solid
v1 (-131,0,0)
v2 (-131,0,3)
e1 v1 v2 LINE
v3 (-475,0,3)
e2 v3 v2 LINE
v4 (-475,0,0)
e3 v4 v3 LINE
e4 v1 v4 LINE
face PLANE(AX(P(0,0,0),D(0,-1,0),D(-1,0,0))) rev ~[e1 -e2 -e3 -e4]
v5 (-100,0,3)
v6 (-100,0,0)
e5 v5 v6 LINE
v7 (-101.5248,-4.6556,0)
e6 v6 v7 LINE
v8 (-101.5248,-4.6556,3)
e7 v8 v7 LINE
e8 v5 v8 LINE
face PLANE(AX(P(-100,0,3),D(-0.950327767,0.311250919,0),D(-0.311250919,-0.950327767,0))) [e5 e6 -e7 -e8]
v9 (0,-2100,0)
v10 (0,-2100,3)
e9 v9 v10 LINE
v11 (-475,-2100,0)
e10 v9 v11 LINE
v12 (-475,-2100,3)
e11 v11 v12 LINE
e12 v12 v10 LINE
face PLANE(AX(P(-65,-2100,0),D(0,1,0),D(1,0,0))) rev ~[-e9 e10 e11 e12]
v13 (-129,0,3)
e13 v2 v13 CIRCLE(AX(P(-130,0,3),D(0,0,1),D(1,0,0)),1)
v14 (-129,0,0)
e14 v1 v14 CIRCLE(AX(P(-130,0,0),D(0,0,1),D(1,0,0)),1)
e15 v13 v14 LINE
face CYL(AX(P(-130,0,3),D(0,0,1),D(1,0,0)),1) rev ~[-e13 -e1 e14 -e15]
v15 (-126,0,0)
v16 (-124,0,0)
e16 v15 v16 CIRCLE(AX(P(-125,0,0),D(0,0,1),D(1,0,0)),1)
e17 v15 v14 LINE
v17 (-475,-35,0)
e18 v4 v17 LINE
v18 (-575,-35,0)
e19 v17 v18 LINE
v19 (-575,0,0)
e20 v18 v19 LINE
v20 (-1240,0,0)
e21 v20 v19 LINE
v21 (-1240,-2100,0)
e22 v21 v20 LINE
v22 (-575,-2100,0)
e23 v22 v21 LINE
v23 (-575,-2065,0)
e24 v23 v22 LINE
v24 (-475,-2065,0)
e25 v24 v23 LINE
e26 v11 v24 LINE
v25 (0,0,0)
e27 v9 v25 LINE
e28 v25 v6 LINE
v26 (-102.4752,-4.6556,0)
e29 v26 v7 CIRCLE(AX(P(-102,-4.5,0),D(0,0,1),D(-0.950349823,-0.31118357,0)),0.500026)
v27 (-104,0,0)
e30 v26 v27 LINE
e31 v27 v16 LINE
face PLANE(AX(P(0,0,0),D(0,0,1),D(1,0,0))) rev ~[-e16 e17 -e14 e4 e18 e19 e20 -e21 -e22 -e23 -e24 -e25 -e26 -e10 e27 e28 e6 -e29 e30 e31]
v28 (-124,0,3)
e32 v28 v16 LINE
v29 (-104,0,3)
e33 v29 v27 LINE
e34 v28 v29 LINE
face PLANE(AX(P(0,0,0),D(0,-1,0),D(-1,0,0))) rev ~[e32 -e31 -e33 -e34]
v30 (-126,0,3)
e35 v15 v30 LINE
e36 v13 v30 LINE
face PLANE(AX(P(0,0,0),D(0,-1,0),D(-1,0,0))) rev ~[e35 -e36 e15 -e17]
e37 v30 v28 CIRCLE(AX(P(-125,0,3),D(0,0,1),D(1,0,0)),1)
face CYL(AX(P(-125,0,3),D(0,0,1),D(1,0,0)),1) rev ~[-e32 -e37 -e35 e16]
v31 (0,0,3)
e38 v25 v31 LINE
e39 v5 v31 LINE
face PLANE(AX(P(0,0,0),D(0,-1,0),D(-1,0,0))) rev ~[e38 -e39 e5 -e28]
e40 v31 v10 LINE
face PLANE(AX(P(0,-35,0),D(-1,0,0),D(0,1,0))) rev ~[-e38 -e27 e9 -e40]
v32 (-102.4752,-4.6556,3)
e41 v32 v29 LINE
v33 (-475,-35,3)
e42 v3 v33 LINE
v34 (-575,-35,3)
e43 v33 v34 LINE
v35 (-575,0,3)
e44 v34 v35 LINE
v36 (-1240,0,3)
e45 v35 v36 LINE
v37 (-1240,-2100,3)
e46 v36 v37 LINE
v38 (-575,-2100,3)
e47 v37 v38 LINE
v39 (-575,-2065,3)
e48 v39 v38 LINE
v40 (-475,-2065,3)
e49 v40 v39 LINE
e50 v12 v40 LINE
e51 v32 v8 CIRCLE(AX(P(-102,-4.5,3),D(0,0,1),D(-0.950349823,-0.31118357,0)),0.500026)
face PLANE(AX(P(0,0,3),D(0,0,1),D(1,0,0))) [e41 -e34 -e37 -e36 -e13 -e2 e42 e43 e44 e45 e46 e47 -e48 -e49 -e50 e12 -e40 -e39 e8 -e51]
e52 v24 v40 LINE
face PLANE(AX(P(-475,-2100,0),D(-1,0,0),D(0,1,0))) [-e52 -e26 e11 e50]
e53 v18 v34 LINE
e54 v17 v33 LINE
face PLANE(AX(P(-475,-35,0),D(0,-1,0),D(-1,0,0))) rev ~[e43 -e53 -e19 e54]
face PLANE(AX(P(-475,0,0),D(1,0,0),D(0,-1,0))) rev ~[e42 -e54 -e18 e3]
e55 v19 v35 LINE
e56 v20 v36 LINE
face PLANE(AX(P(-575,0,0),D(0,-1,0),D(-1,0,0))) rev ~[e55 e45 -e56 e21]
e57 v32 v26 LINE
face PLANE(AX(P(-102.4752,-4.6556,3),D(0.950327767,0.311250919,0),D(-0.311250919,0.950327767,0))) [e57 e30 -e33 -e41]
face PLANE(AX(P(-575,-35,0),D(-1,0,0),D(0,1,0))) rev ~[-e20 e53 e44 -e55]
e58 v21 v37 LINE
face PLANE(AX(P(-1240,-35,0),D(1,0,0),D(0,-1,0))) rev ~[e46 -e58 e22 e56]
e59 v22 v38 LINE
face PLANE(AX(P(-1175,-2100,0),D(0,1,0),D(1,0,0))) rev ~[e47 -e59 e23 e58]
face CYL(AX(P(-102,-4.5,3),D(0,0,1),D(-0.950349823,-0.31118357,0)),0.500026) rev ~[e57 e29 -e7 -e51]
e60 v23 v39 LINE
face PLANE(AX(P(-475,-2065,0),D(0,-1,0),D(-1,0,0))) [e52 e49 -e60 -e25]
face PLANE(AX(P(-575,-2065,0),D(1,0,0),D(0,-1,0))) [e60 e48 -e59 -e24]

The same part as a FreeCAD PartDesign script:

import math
import FreeCAD as App
import Part
import Sketcher

doc = App.newDocument("Part")
body = doc.addObject("PartDesign::Body", "Body")

sketch1 = doc.addObject("Sketcher::SketchObject", "Sketch")
body.addObject(sketch1)
sketch1.AttachmentSupport = (doc.XY_Plane, [""])
sketch1.MapMode = "FlatFace"
sketch1.addGeometry(Part.LineSegment(App.Vector(0, 0, 0), App.Vector(-475, 0, 0)), False)
sketch1.addGeometry(Part.LineSegment(App.Vector(-475, 0, 0), App.Vector(-475, -35, 0)), False)
sketch1.addGeometry(Part.LineSegment(App.Vector(-475, -35, 0), App.Vector(-575, -35, 0)), False)
sketch1.addGeometry(Part.LineSegment(App.Vector(-575, -35, 0), App.Vector(-575, 0, 0)), False)
sketch1.addGeometry(Part.LineSegment(App.Vector(-575, 0, 0), App.Vector(-1240, 0, 0)), False)
sketch1.addGeometry(Part.LineSegment(App.Vector(-1240, 0, 0), App.Vector(-1240, -2100, 0)), False)
sketch1.addGeometry(Part.LineSegment(App.Vector(-1240, -2100, 0), App.Vector(-575, -2100, 0)), False)
sketch1.addGeometry(Part.LineSegment(App.Vector(-575, -2100, 0), App.Vector(-575, -2065, 0)), False)
sketch1.addGeometry(Part.LineSegment(App.Vector(-575, -2065, 0), App.Vector(-475, -2065, 0)), False)
sketch1.addGeometry(Part.LineSegment(App.Vector(-475, -2065, 0), App.Vector(-475, -2100, 0)), False)
sketch1.addGeometry(Part.LineSegment(App.Vector(-475, -2100, 0), App.Vector(0, -2100, 0)), False)
sketch1.addGeometry(Part.LineSegment(App.Vector(0, -2100, 0), App.Vector(0, 0, 0)), False)
sketch1.addConstraint(Sketcher.Constraint("Coincident", 0, 2, 1, 1))
sketch1.addConstraint(Sketcher.Constraint("Coincident", 1, 2, 2, 1))
sketch1.addConstraint(Sketcher.Constraint("Coincident", 2, 2, 3, 1))
sketch1.addConstraint(Sketcher.Constraint("Coincident", 3, 2, 4, 1))
sketch1.addConstraint(Sketcher.Constraint("Coincident", 4, 2, 5, 1))
sketch1.addConstraint(Sketcher.Constraint("Coincident", 5, 2, 6, 1))
sketch1.addConstraint(Sketcher.Constraint("Coincident", 6, 2, 7, 1))
sketch1.addConstraint(Sketcher.Constraint("Coincident", 7, 2, 8, 1))
sketch1.addConstraint(Sketcher.Constraint("Coincident", 8, 2, 9, 1))
sketch1.addConstraint(Sketcher.Constraint("Coincident", 9, 2, 10, 1))
sketch1.addConstraint(Sketcher.Constraint("Coincident", 10, 2, 11, 1))
sketch1.addConstraint(Sketcher.Constraint("Coincident", 11, 2, 0, 1))
sketch1.addConstraint(Sketcher.Constraint("Horizontal", 0))
sketch1.addConstraint(Sketcher.Constraint("Vertical", 1))
sketch1.addConstraint(Sketcher.Constraint("Horizontal", 2))
sketch1.addConstraint(Sketcher.Constraint("Vertical", 3))
sketch1.addConstraint(Sketcher.Constraint("Horizontal", 4))
sketch1.addConstraint(Sketcher.Constraint("Vertical", 5))
sketch1.addConstraint(Sketcher.Constraint("Horizontal", 6))
sketch1.addConstraint(Sketcher.Constraint("Vertical", 7))
sketch1.addConstraint(Sketcher.Constraint("Horizontal", 8))
sketch1.addConstraint(Sketcher.Constraint("Vertical", 9))
sketch1.addConstraint(Sketcher.Constraint("Horizontal", 10))
sketch1.addConstraint(Sketcher.Constraint("Vertical", 11))
sketch1.addConstraint(Sketcher.Constraint("Coincident", 11, 2, -1, 1))
sketch1.addConstraint(Sketcher.Constraint("PointOnObject", 3, 2, -1))
sketch1.addConstraint(Sketcher.Constraint("Horizontal", 6, 2, 9, 2))
sketch1.addConstraint(Sketcher.Constraint("Vertical", 3, 2, 6, 2))
sketch1.addConstraint(Sketcher.Constraint("Vertical", 1, 2, 8, 2))
sketch1.addConstraint(Sketcher.Constraint("Equal", 3, 7))
sketch1.addConstraint(Sketcher.Constraint("DistanceX", 2, 2, 2, 1, 100.0))
sketch1.addConstraint(Sketcher.Constraint("DistanceY", 1, 2, 1, 1, 35.0))
sketch1.addConstraint(Sketcher.Constraint("DistanceY", 5, 2, 5, 1, 2100.0))
sketch1.addConstraint(Sketcher.Constraint("DistanceX", 4, 2, -1, 1, 1240.0))
sketch1.addConstraint(Sketcher.Constraint("DistanceX", 0, 2, 0, 1, 475.0))
pad1 = doc.addObject("PartDesign::Pad", "Pad")
body.addObject(pad1)
pad1.Profile = sketch1
pad1.Length = 3

sketch2 = doc.addObject("Sketcher::SketchObject", "Sketch001")
body.addObject(sketch2)
sketch2.AttachmentSupport = (doc.XY_Plane, [""])
sketch2.MapMode = "FlatFace"
sketch2.AttachmentOffset = App.Placement(App.Vector(0, 0, 3), App.Rotation())
sketch2.addGeometry(Part.LineSegment(App.Vector(-101.5, -4.7, 0), App.Vector(-100, 0, 0)), False)
sketch2.addGeometry(Part.LineSegment(App.Vector(-100, 0, 0), App.Vector(-104, 0, 0)), False)
sketch2.addGeometry(Part.LineSegment(App.Vector(-104, 0, 0), App.Vector(-102.5, -4.7, 0)), False)
sketch2.addGeometry(Part.ArcOfCircle(Part.Circle(App.Vector(-102, -4.5, 0), App.Vector(0, 0, 1), 0.5), math.radians(-162), math.radians(-18)), False)
sketch2.addGeometry(Part.Circle(App.Vector(-125, 0, 0), App.Vector(0, 0, 1), 1), False)
sketch2.addGeometry(Part.Circle(App.Vector(-130, 0, 0), App.Vector(0, 0, 1), 1), False)
sketch2.addConstraint(Sketcher.Constraint("Coincident", 0, 2, 1, 1))
sketch2.addConstraint(Sketcher.Constraint("Coincident", 1, 2, 2, 1))
sketch2.addConstraint(Sketcher.Constraint("Tangent", 2, 2, 3, 1))
sketch2.addConstraint(Sketcher.Constraint("Tangent", 3, 2, 0, 1))
sketch2.addConstraint(Sketcher.Constraint("Horizontal", 1))
sketch2.addConstraint(Sketcher.Constraint("Equal", 4, 5))
sketch2.addConstraint(Sketcher.Constraint("PointOnObject", 4, 3, -1))
sketch2.addConstraint(Sketcher.Constraint("PointOnObject", 5, 3, -1))
sketch2.addConstraint(Sketcher.Constraint("PointOnObject", 0, 2, -1))
sketch2.addConstraint(Sketcher.Constraint("Horizontal", 2, 2, 3, 2))
sketch2.addConstraint(Sketcher.Constraint("Diameter", 4, 2.0))
sketch2.addConstraint(Sketcher.Constraint("Radius", 3, 0.5))
sketch2.addConstraint(Sketcher.Constraint("DistanceX", 1, 2, 1, 1, 4.0))
sketch2.addConstraint(Sketcher.Constraint("DistanceX", 0, 2, -1, 1, 100.0))
sketch2.addConstraint(Sketcher.Constraint("DistanceX", 5, 3, 4, 3, 5.0))
sketch2.addConstraint(Sketcher.Constraint("DistanceX", 4, 3, -1, 1, 125.0))
sketch2.addConstraint(Sketcher.Constraint("DistanceY", 3, 3, -1, 1, 4.5))
pocket1 = doc.addObject("PartDesign::Pocket", "Pocket")
body.addObject(pocket1)
pocket1.Profile = sketch2
pocket1.Length = 3

doc.recompute()
